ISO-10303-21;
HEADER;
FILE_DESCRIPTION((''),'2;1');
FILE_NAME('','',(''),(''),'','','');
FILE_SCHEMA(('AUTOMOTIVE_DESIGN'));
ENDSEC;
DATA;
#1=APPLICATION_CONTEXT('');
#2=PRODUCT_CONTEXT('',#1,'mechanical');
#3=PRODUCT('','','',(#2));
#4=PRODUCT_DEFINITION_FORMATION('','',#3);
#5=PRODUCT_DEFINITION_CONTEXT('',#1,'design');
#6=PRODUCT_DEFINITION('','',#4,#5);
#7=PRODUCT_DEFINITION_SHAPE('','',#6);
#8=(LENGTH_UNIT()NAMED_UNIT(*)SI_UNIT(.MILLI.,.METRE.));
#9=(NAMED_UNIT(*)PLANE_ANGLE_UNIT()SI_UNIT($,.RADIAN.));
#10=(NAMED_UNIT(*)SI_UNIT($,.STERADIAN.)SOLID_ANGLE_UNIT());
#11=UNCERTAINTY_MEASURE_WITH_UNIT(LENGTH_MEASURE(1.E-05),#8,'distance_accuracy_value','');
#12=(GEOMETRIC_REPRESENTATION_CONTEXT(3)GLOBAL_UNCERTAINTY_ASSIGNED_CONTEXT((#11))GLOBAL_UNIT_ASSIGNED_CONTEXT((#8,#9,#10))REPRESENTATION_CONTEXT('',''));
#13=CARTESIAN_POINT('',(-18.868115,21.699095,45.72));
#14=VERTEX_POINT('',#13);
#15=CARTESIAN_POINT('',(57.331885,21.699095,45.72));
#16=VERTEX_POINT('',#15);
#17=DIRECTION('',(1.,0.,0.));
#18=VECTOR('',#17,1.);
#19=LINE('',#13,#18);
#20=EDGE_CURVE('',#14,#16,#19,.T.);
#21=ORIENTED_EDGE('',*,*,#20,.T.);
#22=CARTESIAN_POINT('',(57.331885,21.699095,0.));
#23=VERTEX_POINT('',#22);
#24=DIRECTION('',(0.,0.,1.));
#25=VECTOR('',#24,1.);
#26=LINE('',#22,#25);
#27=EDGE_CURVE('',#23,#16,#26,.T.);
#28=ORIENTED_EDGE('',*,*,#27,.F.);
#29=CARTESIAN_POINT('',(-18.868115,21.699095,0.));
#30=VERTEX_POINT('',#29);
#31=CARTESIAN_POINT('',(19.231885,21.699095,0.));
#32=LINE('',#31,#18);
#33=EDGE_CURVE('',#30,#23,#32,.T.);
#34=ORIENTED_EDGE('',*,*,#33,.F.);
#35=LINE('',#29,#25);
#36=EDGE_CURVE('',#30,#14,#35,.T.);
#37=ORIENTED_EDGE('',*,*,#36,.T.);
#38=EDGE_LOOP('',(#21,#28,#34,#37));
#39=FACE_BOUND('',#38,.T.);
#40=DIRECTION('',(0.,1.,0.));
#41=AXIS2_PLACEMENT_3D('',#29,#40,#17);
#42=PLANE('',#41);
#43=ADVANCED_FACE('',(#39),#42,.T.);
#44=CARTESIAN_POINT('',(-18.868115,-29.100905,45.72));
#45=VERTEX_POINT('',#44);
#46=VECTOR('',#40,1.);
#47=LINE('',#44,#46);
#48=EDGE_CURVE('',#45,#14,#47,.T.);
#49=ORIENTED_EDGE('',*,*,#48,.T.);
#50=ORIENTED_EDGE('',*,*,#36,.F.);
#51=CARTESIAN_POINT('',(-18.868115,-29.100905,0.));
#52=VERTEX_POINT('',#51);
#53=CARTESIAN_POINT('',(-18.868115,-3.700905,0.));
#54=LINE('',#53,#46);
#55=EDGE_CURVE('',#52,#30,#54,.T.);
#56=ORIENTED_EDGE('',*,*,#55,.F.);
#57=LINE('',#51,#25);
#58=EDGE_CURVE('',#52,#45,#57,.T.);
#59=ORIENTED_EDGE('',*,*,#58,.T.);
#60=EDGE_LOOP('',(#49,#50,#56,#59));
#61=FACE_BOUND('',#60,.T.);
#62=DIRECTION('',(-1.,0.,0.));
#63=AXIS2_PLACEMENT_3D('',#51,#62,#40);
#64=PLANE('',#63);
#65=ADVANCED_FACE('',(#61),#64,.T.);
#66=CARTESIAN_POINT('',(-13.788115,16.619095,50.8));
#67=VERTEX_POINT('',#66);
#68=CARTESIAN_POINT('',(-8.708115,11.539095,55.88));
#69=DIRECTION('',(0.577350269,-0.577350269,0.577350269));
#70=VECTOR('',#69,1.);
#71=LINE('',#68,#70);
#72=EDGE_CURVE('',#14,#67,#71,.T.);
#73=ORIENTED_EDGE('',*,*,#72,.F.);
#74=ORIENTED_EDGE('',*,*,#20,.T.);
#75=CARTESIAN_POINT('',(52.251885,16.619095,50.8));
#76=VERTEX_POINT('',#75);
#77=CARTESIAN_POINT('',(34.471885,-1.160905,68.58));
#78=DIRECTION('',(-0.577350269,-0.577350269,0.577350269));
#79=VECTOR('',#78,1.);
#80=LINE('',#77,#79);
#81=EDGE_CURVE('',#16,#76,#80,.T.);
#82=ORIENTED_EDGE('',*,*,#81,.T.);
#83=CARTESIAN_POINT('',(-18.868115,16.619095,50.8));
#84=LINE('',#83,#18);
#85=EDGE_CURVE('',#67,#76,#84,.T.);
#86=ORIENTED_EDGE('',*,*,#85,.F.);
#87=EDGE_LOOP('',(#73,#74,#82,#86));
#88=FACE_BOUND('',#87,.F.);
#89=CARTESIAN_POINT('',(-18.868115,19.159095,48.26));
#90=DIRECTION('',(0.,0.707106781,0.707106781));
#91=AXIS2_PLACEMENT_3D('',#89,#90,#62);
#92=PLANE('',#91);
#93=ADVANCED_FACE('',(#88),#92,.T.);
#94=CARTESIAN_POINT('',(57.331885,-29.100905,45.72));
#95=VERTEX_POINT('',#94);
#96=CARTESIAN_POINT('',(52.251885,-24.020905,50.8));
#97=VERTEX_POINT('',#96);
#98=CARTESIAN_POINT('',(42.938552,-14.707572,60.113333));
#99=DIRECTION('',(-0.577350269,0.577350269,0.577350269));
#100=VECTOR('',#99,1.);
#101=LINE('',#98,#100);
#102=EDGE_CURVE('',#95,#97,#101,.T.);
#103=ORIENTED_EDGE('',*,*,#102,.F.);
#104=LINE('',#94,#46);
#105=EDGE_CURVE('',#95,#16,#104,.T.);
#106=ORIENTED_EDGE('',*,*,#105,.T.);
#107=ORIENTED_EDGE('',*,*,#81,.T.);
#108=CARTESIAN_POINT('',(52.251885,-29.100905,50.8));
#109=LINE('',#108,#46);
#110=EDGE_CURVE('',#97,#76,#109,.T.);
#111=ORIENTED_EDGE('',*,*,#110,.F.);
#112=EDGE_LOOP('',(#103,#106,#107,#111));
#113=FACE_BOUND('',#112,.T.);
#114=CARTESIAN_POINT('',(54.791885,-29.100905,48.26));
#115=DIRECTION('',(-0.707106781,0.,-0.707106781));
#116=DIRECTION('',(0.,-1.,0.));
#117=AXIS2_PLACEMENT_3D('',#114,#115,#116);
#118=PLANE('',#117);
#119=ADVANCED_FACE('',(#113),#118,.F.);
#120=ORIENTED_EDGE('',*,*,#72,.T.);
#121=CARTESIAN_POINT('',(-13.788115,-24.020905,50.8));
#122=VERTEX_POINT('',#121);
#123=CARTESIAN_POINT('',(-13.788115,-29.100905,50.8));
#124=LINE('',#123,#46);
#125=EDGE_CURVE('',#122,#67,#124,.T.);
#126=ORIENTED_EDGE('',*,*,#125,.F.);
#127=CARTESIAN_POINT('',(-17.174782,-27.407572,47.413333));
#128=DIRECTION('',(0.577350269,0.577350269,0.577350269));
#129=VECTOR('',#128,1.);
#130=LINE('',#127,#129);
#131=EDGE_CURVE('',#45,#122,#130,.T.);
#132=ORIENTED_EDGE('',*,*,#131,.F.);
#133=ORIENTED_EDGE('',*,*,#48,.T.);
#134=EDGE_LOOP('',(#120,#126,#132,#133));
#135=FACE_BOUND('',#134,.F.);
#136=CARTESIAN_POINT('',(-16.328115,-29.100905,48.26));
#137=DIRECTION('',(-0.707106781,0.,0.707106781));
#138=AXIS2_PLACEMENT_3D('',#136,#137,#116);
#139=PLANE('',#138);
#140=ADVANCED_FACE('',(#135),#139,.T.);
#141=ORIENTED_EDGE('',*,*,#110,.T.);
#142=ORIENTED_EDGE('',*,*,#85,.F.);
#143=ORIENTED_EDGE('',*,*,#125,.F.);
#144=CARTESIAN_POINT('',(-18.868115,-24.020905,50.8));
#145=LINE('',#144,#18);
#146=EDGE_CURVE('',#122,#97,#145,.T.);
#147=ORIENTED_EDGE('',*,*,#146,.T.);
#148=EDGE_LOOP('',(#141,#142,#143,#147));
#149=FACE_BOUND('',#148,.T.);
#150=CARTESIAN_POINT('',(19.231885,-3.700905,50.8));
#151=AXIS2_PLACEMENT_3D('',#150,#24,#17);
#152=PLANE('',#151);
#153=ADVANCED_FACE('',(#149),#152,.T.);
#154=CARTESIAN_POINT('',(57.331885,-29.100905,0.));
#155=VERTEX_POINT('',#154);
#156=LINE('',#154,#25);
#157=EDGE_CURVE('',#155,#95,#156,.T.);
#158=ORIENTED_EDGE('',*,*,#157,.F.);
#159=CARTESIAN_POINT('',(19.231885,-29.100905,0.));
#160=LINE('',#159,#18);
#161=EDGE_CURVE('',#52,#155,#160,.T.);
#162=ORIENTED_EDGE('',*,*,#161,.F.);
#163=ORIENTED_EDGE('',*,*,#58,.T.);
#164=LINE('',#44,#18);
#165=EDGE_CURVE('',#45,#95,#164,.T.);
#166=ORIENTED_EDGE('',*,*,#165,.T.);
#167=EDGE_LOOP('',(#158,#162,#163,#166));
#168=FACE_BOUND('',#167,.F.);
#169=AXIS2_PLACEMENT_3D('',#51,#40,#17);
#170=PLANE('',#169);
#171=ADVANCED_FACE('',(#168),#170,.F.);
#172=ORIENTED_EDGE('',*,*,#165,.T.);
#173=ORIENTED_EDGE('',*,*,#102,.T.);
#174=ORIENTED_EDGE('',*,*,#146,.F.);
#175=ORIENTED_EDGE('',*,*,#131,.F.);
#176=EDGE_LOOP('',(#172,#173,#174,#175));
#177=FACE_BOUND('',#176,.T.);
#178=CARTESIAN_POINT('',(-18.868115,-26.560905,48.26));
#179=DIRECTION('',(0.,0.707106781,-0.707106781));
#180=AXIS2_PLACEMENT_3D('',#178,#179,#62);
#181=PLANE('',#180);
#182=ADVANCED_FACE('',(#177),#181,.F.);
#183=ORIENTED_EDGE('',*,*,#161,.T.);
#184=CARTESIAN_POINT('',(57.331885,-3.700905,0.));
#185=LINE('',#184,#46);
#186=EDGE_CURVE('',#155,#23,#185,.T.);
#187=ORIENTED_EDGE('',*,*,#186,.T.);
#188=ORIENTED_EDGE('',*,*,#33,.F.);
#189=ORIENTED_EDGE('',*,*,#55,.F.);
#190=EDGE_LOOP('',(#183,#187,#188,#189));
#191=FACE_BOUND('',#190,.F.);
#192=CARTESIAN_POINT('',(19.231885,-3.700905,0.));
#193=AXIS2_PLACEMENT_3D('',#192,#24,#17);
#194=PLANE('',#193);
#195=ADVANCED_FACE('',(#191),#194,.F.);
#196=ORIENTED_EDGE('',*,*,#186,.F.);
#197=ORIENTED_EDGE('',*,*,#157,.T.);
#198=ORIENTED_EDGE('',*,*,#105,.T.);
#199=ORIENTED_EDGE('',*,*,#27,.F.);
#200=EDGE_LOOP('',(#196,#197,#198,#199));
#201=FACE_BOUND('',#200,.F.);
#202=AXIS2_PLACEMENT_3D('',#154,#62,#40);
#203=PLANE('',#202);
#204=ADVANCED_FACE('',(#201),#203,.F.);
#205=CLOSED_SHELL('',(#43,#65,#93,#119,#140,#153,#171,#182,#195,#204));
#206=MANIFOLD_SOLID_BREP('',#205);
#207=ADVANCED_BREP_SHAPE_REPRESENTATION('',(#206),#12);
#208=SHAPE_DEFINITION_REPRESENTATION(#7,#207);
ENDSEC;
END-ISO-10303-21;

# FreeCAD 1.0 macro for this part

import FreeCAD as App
import Part
import Sketcher
Q = App.Units.Quantity


def edges_at(feature, points):
    """Names of the edges that pass closest to the given points."""
    edges = feature.Shape.Edges
    near = lambda p: min(range(len(edges)), key=lambda i: edges[i].distToShape(Part.Vertex(*p))[0])
    return sorted({f"Edge{near(p) + 1}" for p in points})

doc = App.newDocument("Part")
body = doc.addObject("PartDesign::Body", "Body")

# Sketch on XY plane
sketch1 = body.newObject("Sketcher::SketchObject", "Sketch")
sketch1.AttachmentSupport = (doc.getObject("XY_Plane"), [""])
sketch1.MapMode = "FlatFace"
sketch1.addGeometry([
    Part.LineSegment(App.Vector(-19, 22, 0), App.Vector(-19, -29, 0)),
    Part.LineSegment(App.Vector(-19, -29, 0), App.Vector(57, -29, 0)),
    Part.LineSegment(App.Vector(57, -29, 0), App.Vector(57, 22, 0)),
    Part.LineSegment(App.Vector(57, 22, 0), App.Vector(-19, 22, 0)),
], False)
sketch1.addConstraint([
    Sketcher.Constraint("Coincident", 0, 2, 1, 1),
    Sketcher.Constraint("Coincident", 1, 2, 2, 1),
    Sketcher.Constraint("Coincident", 2, 2, 3, 1),
    Sketcher.Constraint("Coincident", 3, 2, 0, 1),
    Sketcher.Constraint("Vertical", 0),
    Sketcher.Constraint("Horizontal", 1),
    Sketcher.Constraint("Vertical", 2),
    Sketcher.Constraint("Horizontal", 3),
    Sketcher.Constraint("DistanceX", 1, 1, 1, 2, Q("3 in")),
    Sketcher.Constraint("DistanceY", 0, 2, 0, 1, Q("2 in")),
    Sketcher.Constraint("DistanceX", 0, 2, -1, 1, 18.868115),
    Sketcher.Constraint("DistanceY", 0, 2, -1, 1, 29.100905),
])
pad1 = body.newObject("PartDesign::Pad", "Pad")
pad1.Profile = sketch1
pad1.Length = Q("2 in")
doc.recompute()

chamfer = body.newObject("PartDesign::Chamfer", "Chamfer")
chamfer.Base = (pad1, edges_at(pad1, [
    (19.232, -29.101, 50.8),
    (57.332, -3.701, 50.8),
    (19.232, 21.699, 50.8),
    (-18.868, -3.701, 50.8),
]))
chamfer.Size = Q("0.2 in")

doc.recompute()
